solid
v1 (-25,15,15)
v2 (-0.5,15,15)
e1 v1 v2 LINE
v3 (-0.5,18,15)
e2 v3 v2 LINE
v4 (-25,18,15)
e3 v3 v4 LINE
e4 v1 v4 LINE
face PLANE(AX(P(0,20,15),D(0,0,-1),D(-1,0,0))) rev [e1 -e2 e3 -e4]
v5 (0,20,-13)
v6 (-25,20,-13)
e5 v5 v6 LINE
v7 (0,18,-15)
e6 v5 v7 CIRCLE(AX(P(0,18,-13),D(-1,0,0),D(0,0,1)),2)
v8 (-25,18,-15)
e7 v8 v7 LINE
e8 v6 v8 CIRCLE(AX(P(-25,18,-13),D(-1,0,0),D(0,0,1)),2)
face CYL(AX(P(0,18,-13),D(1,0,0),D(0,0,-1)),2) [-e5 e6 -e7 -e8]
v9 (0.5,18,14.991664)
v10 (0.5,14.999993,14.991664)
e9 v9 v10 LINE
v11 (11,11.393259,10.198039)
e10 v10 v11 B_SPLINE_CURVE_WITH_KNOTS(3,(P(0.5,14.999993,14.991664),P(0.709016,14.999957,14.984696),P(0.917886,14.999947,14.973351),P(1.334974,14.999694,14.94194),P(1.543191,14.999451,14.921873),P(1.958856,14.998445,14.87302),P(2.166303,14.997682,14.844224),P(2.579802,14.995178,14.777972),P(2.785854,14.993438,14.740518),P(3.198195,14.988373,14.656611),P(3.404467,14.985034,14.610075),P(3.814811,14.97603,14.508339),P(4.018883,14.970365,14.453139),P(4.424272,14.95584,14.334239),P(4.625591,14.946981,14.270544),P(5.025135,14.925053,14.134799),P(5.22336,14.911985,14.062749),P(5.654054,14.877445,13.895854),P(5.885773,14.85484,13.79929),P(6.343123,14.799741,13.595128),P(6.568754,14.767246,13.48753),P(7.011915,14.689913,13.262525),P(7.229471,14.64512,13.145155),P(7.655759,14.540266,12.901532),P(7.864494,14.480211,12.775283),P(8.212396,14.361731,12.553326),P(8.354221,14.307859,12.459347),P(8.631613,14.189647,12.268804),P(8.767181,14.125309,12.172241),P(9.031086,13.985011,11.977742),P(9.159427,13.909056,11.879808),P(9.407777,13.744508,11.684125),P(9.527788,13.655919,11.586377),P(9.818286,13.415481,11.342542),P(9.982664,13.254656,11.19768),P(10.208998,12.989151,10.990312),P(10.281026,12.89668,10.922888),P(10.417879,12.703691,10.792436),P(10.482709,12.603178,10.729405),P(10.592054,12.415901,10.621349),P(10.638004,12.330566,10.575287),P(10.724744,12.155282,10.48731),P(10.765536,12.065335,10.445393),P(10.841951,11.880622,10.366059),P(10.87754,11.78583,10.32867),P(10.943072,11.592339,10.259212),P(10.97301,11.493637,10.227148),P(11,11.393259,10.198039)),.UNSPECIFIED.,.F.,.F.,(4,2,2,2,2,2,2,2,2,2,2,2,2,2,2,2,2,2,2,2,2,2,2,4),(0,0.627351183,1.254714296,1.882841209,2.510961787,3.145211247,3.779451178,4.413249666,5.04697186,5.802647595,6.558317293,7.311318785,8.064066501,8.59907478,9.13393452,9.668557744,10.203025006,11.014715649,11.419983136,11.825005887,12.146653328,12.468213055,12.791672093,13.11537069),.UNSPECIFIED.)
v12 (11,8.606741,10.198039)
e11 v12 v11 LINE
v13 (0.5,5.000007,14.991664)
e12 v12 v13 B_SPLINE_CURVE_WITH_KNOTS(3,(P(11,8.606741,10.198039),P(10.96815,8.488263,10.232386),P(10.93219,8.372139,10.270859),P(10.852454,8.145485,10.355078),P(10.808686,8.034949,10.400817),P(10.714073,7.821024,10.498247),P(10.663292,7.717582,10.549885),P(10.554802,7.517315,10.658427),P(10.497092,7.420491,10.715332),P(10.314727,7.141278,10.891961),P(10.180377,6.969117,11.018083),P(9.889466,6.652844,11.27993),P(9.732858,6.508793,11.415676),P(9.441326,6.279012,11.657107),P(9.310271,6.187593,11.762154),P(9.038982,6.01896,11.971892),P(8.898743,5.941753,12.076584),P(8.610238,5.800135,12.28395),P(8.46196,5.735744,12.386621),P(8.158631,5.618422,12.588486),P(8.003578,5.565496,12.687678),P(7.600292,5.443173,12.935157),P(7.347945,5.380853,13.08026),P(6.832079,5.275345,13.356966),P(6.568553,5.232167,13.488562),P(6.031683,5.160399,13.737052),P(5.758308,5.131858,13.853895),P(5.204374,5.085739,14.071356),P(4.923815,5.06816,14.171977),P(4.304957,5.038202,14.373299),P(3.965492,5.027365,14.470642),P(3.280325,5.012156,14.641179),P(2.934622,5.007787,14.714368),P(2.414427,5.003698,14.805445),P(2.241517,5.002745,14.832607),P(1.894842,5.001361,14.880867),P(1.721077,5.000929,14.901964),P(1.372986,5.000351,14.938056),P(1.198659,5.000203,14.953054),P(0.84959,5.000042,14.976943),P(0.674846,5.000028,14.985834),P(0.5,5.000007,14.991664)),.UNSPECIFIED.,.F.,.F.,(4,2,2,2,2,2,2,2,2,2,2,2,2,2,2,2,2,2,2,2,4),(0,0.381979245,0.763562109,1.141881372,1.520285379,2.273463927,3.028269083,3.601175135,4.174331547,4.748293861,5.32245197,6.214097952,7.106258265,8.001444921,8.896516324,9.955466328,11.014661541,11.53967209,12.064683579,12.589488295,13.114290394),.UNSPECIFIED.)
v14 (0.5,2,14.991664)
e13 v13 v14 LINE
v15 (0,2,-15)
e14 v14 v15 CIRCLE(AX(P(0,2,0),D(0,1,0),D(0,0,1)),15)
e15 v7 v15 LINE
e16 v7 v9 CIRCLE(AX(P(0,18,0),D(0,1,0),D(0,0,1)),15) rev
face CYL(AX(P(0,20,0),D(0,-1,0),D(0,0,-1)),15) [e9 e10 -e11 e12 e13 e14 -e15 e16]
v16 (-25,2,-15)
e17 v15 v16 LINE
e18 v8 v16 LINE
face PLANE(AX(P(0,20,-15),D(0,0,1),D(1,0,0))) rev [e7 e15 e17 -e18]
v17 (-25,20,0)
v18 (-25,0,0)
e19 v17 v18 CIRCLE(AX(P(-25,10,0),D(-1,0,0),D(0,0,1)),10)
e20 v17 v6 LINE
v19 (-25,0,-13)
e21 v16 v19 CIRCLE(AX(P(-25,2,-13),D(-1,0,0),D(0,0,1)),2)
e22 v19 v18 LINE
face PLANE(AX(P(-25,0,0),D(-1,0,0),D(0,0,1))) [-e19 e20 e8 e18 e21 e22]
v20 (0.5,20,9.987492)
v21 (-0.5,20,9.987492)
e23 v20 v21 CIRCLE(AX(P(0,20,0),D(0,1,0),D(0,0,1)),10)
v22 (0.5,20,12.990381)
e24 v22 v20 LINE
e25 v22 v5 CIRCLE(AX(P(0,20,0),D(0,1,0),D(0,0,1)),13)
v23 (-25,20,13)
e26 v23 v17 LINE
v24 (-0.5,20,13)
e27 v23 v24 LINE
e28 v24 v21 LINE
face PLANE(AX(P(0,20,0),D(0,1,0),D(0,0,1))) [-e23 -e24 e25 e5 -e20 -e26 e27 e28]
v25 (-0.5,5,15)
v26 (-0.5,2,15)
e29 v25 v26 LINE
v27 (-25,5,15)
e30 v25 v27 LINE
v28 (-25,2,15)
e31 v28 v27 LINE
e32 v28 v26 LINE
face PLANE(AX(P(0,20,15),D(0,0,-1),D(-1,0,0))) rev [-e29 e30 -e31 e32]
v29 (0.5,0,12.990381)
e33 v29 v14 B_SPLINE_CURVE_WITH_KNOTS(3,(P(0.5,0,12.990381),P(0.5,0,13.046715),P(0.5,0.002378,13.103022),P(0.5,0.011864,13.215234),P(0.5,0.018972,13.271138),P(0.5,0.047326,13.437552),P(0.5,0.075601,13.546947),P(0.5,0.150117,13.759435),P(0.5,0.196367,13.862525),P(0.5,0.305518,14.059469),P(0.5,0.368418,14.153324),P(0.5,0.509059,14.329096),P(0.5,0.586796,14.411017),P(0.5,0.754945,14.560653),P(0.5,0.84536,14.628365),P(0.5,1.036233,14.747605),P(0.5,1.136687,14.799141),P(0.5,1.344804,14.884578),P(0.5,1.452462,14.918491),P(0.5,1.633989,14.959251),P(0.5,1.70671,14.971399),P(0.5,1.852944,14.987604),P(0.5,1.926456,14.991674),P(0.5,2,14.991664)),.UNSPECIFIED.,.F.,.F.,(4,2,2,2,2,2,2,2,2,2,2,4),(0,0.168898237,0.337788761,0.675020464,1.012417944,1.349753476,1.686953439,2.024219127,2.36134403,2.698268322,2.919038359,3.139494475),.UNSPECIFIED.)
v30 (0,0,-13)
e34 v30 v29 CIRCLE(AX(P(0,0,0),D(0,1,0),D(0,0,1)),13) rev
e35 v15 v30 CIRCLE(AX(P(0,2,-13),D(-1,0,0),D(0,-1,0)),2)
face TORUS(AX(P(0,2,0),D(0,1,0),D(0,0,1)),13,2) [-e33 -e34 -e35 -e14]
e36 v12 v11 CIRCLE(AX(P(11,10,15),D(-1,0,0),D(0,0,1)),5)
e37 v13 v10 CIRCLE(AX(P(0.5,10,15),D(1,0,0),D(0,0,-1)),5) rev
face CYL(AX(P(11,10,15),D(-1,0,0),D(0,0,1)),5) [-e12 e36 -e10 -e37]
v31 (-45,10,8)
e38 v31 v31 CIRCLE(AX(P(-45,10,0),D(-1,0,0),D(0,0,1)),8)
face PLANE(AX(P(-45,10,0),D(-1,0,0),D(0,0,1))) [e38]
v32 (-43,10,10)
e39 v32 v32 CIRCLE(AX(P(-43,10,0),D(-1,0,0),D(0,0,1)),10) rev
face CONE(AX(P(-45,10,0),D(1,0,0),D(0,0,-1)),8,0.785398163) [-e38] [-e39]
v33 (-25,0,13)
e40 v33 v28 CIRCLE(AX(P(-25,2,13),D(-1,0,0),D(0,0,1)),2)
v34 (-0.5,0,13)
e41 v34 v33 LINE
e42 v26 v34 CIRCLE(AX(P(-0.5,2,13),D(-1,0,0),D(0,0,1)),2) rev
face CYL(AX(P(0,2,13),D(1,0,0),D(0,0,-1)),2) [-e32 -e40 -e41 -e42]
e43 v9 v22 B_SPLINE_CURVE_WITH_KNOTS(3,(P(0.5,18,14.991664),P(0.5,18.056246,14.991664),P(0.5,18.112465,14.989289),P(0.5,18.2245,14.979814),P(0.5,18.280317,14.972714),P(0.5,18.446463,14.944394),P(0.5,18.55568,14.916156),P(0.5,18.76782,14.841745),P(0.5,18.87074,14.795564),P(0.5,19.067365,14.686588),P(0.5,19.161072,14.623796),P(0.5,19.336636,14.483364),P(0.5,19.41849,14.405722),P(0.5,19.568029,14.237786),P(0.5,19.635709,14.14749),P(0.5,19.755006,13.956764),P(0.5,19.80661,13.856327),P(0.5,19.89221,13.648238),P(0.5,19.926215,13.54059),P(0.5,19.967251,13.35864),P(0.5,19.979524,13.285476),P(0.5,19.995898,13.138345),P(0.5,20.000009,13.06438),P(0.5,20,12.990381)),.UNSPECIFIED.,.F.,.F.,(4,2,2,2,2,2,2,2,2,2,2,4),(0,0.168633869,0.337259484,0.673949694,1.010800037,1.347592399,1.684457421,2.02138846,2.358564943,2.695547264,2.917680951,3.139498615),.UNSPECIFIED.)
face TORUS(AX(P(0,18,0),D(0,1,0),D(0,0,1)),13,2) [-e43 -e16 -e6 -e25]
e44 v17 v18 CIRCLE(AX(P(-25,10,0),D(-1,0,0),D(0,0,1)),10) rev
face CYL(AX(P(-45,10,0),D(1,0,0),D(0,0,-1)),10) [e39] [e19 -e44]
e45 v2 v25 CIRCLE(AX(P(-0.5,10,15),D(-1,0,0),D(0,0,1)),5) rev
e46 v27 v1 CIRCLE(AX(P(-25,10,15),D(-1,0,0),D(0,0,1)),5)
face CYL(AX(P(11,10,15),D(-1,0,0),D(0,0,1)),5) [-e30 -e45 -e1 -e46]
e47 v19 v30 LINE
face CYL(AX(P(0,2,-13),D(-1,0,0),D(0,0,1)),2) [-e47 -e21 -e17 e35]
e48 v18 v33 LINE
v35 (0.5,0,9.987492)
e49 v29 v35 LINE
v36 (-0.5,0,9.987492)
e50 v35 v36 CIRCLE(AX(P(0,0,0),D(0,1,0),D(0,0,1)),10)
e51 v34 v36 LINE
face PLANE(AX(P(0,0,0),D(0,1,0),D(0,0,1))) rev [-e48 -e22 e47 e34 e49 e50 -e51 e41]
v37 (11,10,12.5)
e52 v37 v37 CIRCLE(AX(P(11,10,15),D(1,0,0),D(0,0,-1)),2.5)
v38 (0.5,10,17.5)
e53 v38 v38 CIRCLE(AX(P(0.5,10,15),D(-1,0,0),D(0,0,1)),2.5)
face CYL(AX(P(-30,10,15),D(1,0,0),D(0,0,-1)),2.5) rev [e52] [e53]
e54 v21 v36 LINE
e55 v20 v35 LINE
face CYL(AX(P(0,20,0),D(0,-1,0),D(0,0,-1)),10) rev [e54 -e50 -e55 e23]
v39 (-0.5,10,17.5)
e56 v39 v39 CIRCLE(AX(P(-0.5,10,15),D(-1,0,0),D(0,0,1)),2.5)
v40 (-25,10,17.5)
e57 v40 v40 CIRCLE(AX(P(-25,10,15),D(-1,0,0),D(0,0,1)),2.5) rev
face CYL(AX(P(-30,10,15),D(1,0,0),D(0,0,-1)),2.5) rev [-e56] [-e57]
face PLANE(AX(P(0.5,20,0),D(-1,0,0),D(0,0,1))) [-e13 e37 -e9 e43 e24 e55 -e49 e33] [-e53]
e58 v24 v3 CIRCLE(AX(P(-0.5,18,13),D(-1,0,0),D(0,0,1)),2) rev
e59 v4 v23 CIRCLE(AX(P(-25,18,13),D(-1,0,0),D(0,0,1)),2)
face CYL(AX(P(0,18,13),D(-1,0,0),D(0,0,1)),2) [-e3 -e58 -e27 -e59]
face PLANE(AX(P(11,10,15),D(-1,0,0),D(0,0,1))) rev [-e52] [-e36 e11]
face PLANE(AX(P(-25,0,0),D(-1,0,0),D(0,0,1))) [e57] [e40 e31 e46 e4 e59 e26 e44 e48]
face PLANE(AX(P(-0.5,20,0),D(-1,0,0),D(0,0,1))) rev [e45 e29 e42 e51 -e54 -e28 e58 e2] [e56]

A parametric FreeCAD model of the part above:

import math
import FreeCAD as App
import Part
import Sketcher
from FreeCAD import Vector


def edges_at(feature, points):
    """Names of the edges that pass closest to the given points."""
    edges = feature.Shape.Edges
    near = lambda p: min(range(len(edges)), key=lambda i: edges[i].distToShape(Part.Vertex(*p))[0])
    return sorted({f"Edge{near(p) + 1}" for p in points})


def add_polygon(sketch, points):
    """Adds a closed chain of lines whose ends are joined by coincident constraints."""
    first, n = sketch.GeometryCount, len(points)
    for a, b in zip(points, points[1:] + points[:1]):
        sketch.addGeometry(Part.LineSegment(App.Vector(*a, 0), App.Vector(*b, 0)), False)
    for i in range(n):
        sketch.addConstraint(Sketcher.Constraint("Coincident", first + i, 2, first + (i + 1) % n, 1))

doc = App.newDocument("Part")
body = doc.addObject("PartDesign::Body", "Body")

# Sketch on XZ plane
sketch1 = body.newObject("Sketcher::SketchObject", "Sketch")
sketch1.AttachmentSupport = (doc.getObject("XZ_Plane"), [""])
sketch1.MapMode = "FlatFace"
sketch1.addGeometry([
    Part.ArcOfCircle(Part.Circle(Vector(0, 0, 0), Vector(0, 0, 1), 15), math.radians(-90), math.radians(88.089787)),  # 0
    Part.LineSegment(Vector(0, -15, 0), Vector(-30, -15, 0)),  # 1
    Part.LineSegment(Vector(-30, -15, 0), Vector(-30, 15, 0)),  # 2
    Part.LineSegment(Vector(-30, 15, 0), Vector(-0.5, 15, 0)),  # 3
    Part.LineSegment(Vector(-0.5, 15, 0), Vector(-0.5, 9.987492, 0)),  # 4
    Part.ArcOfCircle(Part.Circle(Vector(0, 0, 0), Vector(0, 0, 1), 10), math.radians(92.865984), math.radians(447.134016)),  # 5
    Part.LineSegment(Vector(0.5, 9.987492, 0), Vector(0.5, 14.991664, 0)),  # 6
], False)
sketch1.addConstraint([
    Sketcher.Constraint("Tangent", 0, 1, 1, 1),
    Sketcher.Constraint("Coincident", 1, 2, 2, 1),
    Sketcher.Constraint("Coincident", 2, 2, 3, 1),
    Sketcher.Constraint("Coincident", 3, 2, 4, 1),
    Sketcher.Constraint("Coincident", 4, 2, 5, 1),
    Sketcher.Constraint("Coincident", 5, 2, 6, 1),
    Sketcher.Constraint("Coincident", 6, 2, 0, 2),
    Sketcher.Constraint("Horizontal", 1),
    Sketcher.Constraint("Vertical", 2),
    Sketcher.Constraint("Horizontal", 3),
    Sketcher.Constraint("Vertical", 4),
    Sketcher.Constraint("Vertical", 6),
    Sketcher.Constraint("Coincident", 0, 3, -1, 1),
    Sketcher.Constraint("Coincident", 5, 3, -1, 1),
    Sketcher.Constraint("Horizontal", 4, 2, 5, 2),
    Sketcher.Constraint("Equal", 1, 2),
    Sketcher.Constraint("Radius", 0, 15.0),
    Sketcher.Constraint("Radius", 5, 10.0),
    Sketcher.Constraint("DistanceX", 1, 2, 1, 1, 30.0),
    Sketcher.Constraint("DistanceX", 3, 1, 3, 2, 29.5),
])
pad1 = body.newObject("PartDesign::Pad", "Pad")
pad1.Profile = sketch1
pad1.Length = 20
pad1.Reversed = True

# Sketch on YZ plane
sketch2 = body.newObject("Sketcher::SketchObject", "Sketch001")
sketch2.AttachmentSupport = (doc.getObject("YZ_Plane"), [""])
sketch2.MapMode = "FlatFace"
sketch2.AttachmentOffset = App.Placement(Vector(0, 0, -30), App.Rotation())
sketch2.addGeometry(Part.Circle(Vector(10, 15, 0), Vector(0, 0, 1), 5), False)
sketch2.addConstraint([
    Sketcher.Constraint("Diameter", 0, 10.0),
    Sketcher.Constraint("DistanceX", -1, 1, 0, 3, 10.0),
    Sketcher.Constraint("DistanceY", -1, 1, 0, 3, 15.0),
])
pad2 = body.newObject("PartDesign::Pad", "Pad001")
pad2.Profile = sketch2
pad2.Length = 41

# Sketch on XZ plane
sketch3 = body.newObject("Sketcher::SketchObject", "Sketch002")
sketch3.AttachmentSupport = (doc.getObject("XZ_Plane"), [""])
sketch3.MapMode = "FlatFace"
sketch3.AttachmentOffset = App.Placement(Vector(0, 0, -20), App.Rotation())
add_polygon(sketch3, [(-0.5, 9.987492), (-0.5, 20), (0.5, 20), (0.5, 9.987492)])  # lines 0-3
sketch3.addConstraint([
    Sketcher.Constraint("Vertical", 0),
    Sketcher.Constraint("Horizontal", 1),
    Sketcher.Constraint("Vertical", 2),
    Sketcher.Constraint("Horizontal", 3),
    Sketcher.Constraint("DistanceX", 1, 1, 1, 2, 1.0),
    Sketcher.Constraint("DistanceY", -1, 1, 0, 2, 20.0),
    Sketcher.Constraint("DistanceX", 0, 2, -1, 1, 0.5),
    Sketcher.Constraint("DistanceY", 0, 1, 0, 2, 10.012508),
])
pocket1 = body.newObject("PartDesign::Pocket", "Pocket")
pocket1.Profile = sketch3
pocket1.Length = 41
pocket1.Reversed = True

# Sketch on YZ plane
sketch4 = body.newObject("Sketcher::SketchObject", "Sketch003")
sketch4.AttachmentSupport = (doc.getObject("YZ_Plane"), [""])
sketch4.MapMode = "FlatFace"
sketch4.AttachmentOffset = App.Placement(Vector(0, 0, 11), App.Rotation())
sketch4.addGeometry(Part.Circle(Vector(10, 15, 0), Vector(0, 0, 1), 2.5), False)
sketch4.addConstraint([
    Sketcher.Constraint("Diameter", 0, 5.0),
    Sketcher.Constraint("DistanceX", -1, 1, 0, 3, 10.0),
    Sketcher.Constraint("DistanceY", -1, 1, 0, 3, 15.0),
])
pocket2 = body.newObject("PartDesign::Pocket", "Pocket001")
pocket2.Profile = sketch4
pocket2.Type = "ThroughAll"
doc.recompute()

fillet = body.newObject("PartDesign::Fillet", "Fillet")
fillet.Base = (pocket2, edges_at(pocket2, [
    (-15, 0, -15),
    (14.998, 0, -0.25),
    (-15, 20, -15),
    (-15.25, 20, 15),
    (14.998, 20, -0.25),
    (-15.25, 0, 15),
]))
fillet.Radius = 2

# Sketch on YZ plane
sketch5 = body.newObject("Sketcher::SketchObject", "Sketch004")
sketch5.AttachmentSupport = (doc.getObject("YZ_Plane"), [""])
sketch5.MapMode = "FlatFace"
sketch5.AttachmentOffset = App.Placement(Vector(0, 0, -30), App.Rotation())
sketch5.addGeometry(Part.Circle(Vector(10, 0, 0), Vector(0, 0, 1), 10), False)
sketch5.addConstraint([
    Sketcher.Constraint("PointOnObject", 0, 3, -1),
    Sketcher.Constraint("Diameter", 0, 20.0),
    Sketcher.Constraint("DistanceX", -1, 1, 0, 3, 10.0),
])
pad3 = body.newObject("PartDesign::Pad", "Pad002")
pad3.Profile = sketch5
pad3.Length = 15
pad3.Reversed = True

# Sketch on YZ plane
sketch6 = body.newObject("Sketcher::SketchObject", "Sketch005")
sketch6.AttachmentSupport = (doc.getObject("YZ_Plane"), [""])
sketch6.MapMode = "FlatFace"
sketch6.AttachmentOffset = App.Placement(Vector(0, 0, -30), App.Rotation())
sketch6.addGeometry([
    Part.ArcOfCircle(Part.Circle(Vector(10, 0, 0), Vector(0, 0, 1), 10), math.radians(180), math.radians(360)),  # 0
    Part.LineSegment(Vector(20, 0, 0), Vector(20, -13, 0)),  # 1
    Part.ArcOfCircle(Part.Circle(Vector(18, -13, 0), Vector(0, 0, 1), 2), math.radians(-90), math.radians(0)),  # 2
    Part.LineSegment(Vector(18, -15, 0), Vector(2, -15, 0)),  # 3
    Part.ArcOfCircle(Part.Circle(Vector(2, -13, 0), Vector(0, 0, 1), 2), math.radians(-180), math.radians(-90)),  # 4
    Part.LineSegment(Vector(0, -13, 0), Vector(0, 0, 0)),  # 5
    Part.LineSegment(Vector(20, 13, 0), Vector(20, 0, 0)),  # 6
    Part.ArcOfCircle(Part.Circle(Vector(10, 0, 0), Vector(0, 0, 1), 10), math.radians(0), math.radians(180)),  # 7
    Part.LineSegment(Vector(0, 0, 0), Vector(0, 13, 0)),  # 8
    Part.ArcOfCircle(Part.Circle(Vector(2, 13, 0), Vector(0, 0, 1), 2), math.radians(90), math.radians(180)),  # 9
    Part.LineSegment(Vector(2, 15, 0), Vector(5, 15, 0)),  # 10
    Part.ArcOfCircle(Part.Circle(Vector(10, 15, 0), Vector(0, 0, 1), 5), math.radians(0), math.radians(180)),  # 11
    Part.LineSegment(Vector(15, 15, 0), Vector(18, 15, 0)),  # 12
    Part.ArcOfCircle(Part.Circle(Vector(18, 13, 0), Vector(0, 0, 1), 2), math.radians(0), math.radians(90)),  # 13
], False)
sketch6.addConstraint([
    Sketcher.Constraint("Tangent", 0, 2, 1, 1),
    Sketcher.Constraint("Tangent", 1, 2, 2, 2),
    Sketcher.Constraint("Tangent", 2, 1, 3, 1),
    Sketcher.Constraint("Tangent", 3, 2, 4, 2),
    Sketcher.Constraint("Tangent", 4, 1, 5, 1),
    Sketcher.Constraint("Tangent", 5, 2, 0, 1),
    Sketcher.Constraint("Tangent", 6, 2, 7, 1),
    Sketcher.Constraint("Tangent", 7, 2, 8, 1),
    Sketcher.Constraint("Tangent", 8, 2, 9, 2),
    Sketcher.Constraint("Tangent", 9, 1, 10, 1),
    Sketcher.Constraint("Coincident", 10, 2, 11, 2),
    Sketcher.Constraint("Coincident", 11, 1, 12, 1),
    Sketcher.Constraint("Tangent", 12, 2, 13, 2),
    Sketcher.Constraint("Tangent", 13, 1, 6, 1),
    Sketcher.Constraint("Vertical", 1),
    Sketcher.Constraint("Horizontal", 3),
    Sketcher.Constraint("Vertical", 5),
    Sketcher.Constraint("Vertical", 6),
    Sketcher.Constraint("Vertical", 8),
    Sketcher.Constraint("Horizontal", 10),
    Sketcher.Constraint("Horizontal", 12),
    Sketcher.Constraint("Coincident", 5, 2, -1, 1),
    Sketcher.Constraint("Coincident", 7, 2, -1, 1),
    Sketcher.Constraint("Equal", 2, 4),
    Sketcher.Constraint("Equal", 0, 7),
    Sketcher.Constraint("Equal", 4, 9),
    Sketcher.Constraint("Equal", 9, 13),
    Sketcher.Constraint("Horizontal", 9, 3, 13, 3),
    Sketcher.Constraint("Horizontal", 11, 3, 9, 1),
    Sketcher.Constraint("Vertical", 7, 3, 11, 3),
    Sketcher.Constraint("Equal", 5, 6),
    Sketcher.Constraint("Radius", 0, 10.0),
    Sketcher.Constraint("Radius", 2, 2.0),
    Sketcher.Constraint("Radius", 11, 5.0),
    Sketcher.Constraint("DistanceY", 1, 2, 1, 1, 13.0),
])
pocket3 = body.newObject("PartDesign::Pocket", "Pocket002")
pocket3.Profile = sketch6
pocket3.Length = 5
pocket3.Reversed = True
doc.recompute()

chamfer = body.newObject("PartDesign::Chamfer", "Chamfer")
chamfer.Base = (pocket3, edges_at(pocket3, [(-45, 20, 0)]))
chamfer.Size = 2

doc.recompute()
